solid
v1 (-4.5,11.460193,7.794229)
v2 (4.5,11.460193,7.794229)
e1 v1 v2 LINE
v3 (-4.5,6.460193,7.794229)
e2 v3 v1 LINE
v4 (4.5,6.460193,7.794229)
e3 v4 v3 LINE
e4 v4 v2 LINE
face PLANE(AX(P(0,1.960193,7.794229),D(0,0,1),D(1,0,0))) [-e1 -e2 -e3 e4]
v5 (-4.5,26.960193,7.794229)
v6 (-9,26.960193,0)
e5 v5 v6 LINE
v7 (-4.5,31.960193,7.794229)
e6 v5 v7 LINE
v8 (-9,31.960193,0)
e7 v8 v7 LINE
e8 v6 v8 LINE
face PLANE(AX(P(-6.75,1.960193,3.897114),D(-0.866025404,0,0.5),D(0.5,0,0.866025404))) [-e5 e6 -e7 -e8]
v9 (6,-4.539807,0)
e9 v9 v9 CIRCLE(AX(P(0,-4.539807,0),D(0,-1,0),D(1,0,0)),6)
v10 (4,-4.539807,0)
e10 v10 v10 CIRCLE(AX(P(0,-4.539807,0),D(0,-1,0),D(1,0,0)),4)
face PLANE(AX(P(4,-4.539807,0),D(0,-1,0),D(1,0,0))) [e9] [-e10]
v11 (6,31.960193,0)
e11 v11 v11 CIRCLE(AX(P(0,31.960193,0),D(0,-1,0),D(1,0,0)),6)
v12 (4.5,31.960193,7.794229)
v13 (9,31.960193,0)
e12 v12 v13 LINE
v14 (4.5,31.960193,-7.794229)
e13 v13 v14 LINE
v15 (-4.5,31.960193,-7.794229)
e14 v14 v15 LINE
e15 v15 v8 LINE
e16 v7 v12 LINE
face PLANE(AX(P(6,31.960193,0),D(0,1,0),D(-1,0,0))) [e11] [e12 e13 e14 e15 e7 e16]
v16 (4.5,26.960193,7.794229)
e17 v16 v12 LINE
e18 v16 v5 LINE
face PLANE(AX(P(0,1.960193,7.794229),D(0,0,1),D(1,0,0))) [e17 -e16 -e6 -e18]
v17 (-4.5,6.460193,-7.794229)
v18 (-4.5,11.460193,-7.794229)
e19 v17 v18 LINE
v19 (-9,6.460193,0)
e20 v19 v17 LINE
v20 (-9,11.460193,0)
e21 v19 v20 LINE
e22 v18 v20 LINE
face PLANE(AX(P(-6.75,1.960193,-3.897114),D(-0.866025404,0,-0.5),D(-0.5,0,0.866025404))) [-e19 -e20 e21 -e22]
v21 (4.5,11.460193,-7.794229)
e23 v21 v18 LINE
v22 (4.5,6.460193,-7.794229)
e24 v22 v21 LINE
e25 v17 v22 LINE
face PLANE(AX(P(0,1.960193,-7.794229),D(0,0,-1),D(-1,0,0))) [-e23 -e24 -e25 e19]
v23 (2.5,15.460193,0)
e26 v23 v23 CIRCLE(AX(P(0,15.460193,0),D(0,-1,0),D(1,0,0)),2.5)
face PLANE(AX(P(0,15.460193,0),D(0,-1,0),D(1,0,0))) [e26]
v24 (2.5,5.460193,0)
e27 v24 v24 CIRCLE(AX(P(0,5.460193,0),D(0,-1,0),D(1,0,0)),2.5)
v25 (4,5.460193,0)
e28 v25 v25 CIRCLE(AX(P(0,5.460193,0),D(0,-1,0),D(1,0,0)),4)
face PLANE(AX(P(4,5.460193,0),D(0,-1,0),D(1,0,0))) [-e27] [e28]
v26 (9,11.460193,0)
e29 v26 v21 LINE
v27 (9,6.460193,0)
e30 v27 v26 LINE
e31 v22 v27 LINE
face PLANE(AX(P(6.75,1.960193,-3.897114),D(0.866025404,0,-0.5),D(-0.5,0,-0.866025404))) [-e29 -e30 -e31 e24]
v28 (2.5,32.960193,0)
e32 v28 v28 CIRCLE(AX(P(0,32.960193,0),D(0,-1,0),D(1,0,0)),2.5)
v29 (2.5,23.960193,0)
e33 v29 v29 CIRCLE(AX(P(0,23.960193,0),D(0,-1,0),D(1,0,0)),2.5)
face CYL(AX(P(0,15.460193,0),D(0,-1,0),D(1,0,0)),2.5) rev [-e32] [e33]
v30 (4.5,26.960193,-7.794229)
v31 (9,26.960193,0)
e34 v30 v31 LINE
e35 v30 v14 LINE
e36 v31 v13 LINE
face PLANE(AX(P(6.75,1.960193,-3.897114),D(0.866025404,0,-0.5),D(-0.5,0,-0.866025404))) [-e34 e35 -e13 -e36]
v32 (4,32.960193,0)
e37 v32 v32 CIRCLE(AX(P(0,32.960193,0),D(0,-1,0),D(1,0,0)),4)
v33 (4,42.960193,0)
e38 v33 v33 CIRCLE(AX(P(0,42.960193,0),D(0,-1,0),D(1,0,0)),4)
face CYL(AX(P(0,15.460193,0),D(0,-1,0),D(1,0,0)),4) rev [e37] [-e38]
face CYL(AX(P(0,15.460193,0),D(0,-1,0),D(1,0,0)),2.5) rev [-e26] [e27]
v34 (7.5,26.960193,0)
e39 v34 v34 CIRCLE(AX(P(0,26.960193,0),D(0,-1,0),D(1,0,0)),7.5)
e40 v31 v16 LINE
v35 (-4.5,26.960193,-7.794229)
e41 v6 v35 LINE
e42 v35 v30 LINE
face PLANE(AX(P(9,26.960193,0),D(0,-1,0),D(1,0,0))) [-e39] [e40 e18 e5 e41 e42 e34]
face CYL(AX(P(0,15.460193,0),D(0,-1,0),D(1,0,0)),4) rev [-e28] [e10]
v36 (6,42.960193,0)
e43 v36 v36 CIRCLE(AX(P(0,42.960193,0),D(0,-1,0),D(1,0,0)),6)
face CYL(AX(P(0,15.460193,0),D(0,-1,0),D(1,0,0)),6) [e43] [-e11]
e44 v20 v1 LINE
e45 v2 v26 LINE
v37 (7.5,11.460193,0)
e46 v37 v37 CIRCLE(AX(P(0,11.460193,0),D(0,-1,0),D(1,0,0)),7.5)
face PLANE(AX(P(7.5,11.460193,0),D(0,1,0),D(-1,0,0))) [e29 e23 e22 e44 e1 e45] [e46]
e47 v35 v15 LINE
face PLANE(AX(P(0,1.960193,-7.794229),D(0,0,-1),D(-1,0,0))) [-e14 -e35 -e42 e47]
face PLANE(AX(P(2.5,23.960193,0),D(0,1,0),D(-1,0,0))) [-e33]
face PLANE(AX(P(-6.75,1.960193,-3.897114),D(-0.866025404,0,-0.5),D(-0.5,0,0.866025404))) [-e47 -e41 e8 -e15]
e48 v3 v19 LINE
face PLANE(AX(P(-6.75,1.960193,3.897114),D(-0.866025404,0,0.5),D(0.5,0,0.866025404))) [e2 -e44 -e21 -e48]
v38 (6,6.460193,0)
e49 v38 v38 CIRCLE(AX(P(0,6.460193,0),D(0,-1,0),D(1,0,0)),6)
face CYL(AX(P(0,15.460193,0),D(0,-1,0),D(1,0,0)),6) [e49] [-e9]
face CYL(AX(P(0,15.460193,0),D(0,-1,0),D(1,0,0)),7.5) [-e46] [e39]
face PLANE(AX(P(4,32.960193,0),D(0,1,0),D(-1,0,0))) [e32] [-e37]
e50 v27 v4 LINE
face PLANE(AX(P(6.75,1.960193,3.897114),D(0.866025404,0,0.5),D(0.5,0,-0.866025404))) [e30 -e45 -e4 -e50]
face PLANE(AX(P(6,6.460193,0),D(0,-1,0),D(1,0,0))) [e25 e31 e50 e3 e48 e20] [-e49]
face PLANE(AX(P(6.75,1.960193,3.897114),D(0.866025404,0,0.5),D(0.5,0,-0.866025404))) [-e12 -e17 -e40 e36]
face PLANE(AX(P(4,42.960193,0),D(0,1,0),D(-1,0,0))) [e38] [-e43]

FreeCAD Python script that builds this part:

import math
import FreeCAD as App
import Part
import Sketcher

V = App.Vector
Q = App.Units.Quantity

doc = App.newDocument("Part")
body = doc.addObject("PartDesign::Body", "Body")

# Sketch on XY plane
sketch1 = body.newObject("Sketcher::SketchObject", "Sketch")
sketch1.AttachmentSupport = (doc.getObject("XY_Plane"), [""])
sketch1.MapMode = "FlatFace"
sketch1.addGeometry([
    Part.LineSegment(V(4, -4.539807, 0), V(6, -4.539807, 0)),  # 0
    Part.LineSegment(V(6, -4.539807, 0), V(6, 6.460193, 0)),  # 1
    Part.LineSegment(V(6, 6.460193, 0), V(9, 6.460193, 0)),  # 2
    Part.LineSegment(V(9, 6.460193, 0), V(9, 11.460193, 0)),  # 3
    Part.LineSegment(V(9, 11.460193, 0), V(7.5, 11.460193, 0)),  # 4
    Part.LineSegment(V(7.5, 11.460193, 0), V(7.5, 26.960193, 0)),  # 5
    Part.LineSegment(V(7.5, 26.960193, 0), V(9, 26.960193, 0)),  # 6
    Part.LineSegment(V(9, 26.960193, 0), V(9, 31.960193, 0)),  # 7
    Part.LineSegment(V(9, 31.960193, 0), V(6, 31.960193, 0)),  # 8
    Part.LineSegment(V(6, 31.960193, 0), V(6, 42.960193, 0)),  # 9
    Part.LineSegment(V(6, 42.960193, 0), V(4, 42.960193, 0)),  # 10
    Part.LineSegment(V(4, 42.960193, 0), V(4, 32.960193, 0)),  # 11
    Part.LineSegment(V(4, 32.960193, 0), V(2.5, 32.960193, 0)),  # 12
    Part.LineSegment(V(2.5, 32.960193, 0), V(2.5, 23.960193, 0)),  # 13
    Part.LineSegment(V(2.5, 23.960193, 0), V(0, 23.960193, 0)),  # 14
    Part.LineSegment(V(0, 23.960193, 0), V(0, 15.460193, 0)),  # 15
    Part.LineSegment(V(0, 15.460193, 0), V(2.5, 15.460193, 0)),  # 16
    Part.LineSegment(V(2.5, 15.460193, 0), V(2.5, 5.460193, 0)),  # 17
    Part.LineSegment(V(2.5, 5.460193, 0), V(4, 5.460193, 0)),  # 18
    Part.LineSegment(V(4, 5.460193, 0), V(4, -4.539807, 0)),  # 19
], False)
sketch1.addConstraint([
    Sketcher.Constraint("Coincident", 0, 2, 1, 1),
    Sketcher.Constraint("Coincident", 1, 2, 2, 1),
    Sketcher.Constraint("Coincident", 2, 2, 3, 1),
    Sketcher.Constraint("Coincident", 3, 2, 4, 1),
    Sketcher.Constraint("Coincident", 4, 2, 5, 1),
    Sketcher.Constraint("Coincident", 5, 2, 6, 1),
    Sketcher.Constraint("Coincident", 6, 2, 7, 1),
    Sketcher.Constraint("Coincident", 7, 2, 8, 1),
    Sketcher.Constraint("Coincident", 8, 2, 9, 1),
    Sketcher.Constraint("Coincident", 9, 2, 10, 1),
    Sketcher.Constraint("Coincident", 10, 2, 11, 1),
    Sketcher.Constraint("Coincident", 11, 2, 12, 1),
    Sketcher.Constraint("Coincident", 12, 2, 13, 1),
    Sketcher.Constraint("Coincident", 13, 2, 14, 1),
    Sketcher.Constraint("Coincident", 14, 2, 15, 1),
    Sketcher.Constraint("Coincident", 15, 2, 16, 1),
    Sketcher.Constraint("Coincident", 16, 2, 17, 1),
    Sketcher.Constraint("Coincident", 17, 2, 18, 1),
    Sketcher.Constraint("Coincident", 18, 2, 19, 1),
    Sketcher.Constraint("Coincident", 19, 2, 0, 1),
    Sketcher.Constraint("Horizontal", 0),
    Sketcher.Constraint("Vertical", 1),
    Sketcher.Constraint("Horizontal", 2),
    Sketcher.Constraint("Vertical", 3),
    Sketcher.Constraint("Horizontal", 4),
    Sketcher.Constraint("Vertical", 5),
    Sketcher.Constraint("Horizontal", 6),
    Sketcher.Constraint("Vertical", 7),
    Sketcher.Constraint("Horizontal", 8),
    Sketcher.Constraint("Vertical", 9),
    Sketcher.Constraint("Horizontal", 10),
    Sketcher.Constraint("Vertical", 11),
    Sketcher.Constraint("Horizontal", 12),
    Sketcher.Constraint("Vertical", 13),
    Sketcher.Constraint("Horizontal", 14),
    Sketcher.Constraint("Vertical", 15),
    Sketcher.Constraint("Horizontal", 16),
    Sketcher.Constraint("Vertical", 17),
    Sketcher.Constraint("Horizontal", 18),
    Sketcher.Constraint("Vertical", 19),
    Sketcher.Constraint("PointOnObject", 14, 2, -2),
    Sketcher.Constraint("Vertical", 3, 2, 6, 2),
    Sketcher.Constraint("Vertical", 1, 2, 8, 2),
    Sketcher.Constraint("Vertical", 13, 2, 16, 2),
    Sketcher.Constraint("Vertical", 11, 2, 18, 2),
    Sketcher.Constraint("Equal", 6, 12),
    Sketcher.Constraint("Equal", 3, 7),
    Sketcher.Constraint("Equal", 1, 9),
    Sketcher.Constraint("Equal", 11, 17),
    Sketcher.Constraint("Equal", 17, 19),
    Sketcher.Constraint("DistanceX", 0, 1, 0, 2, Q("2 mm")),
    Sketcher.Constraint("DistanceX", 2, 1, 2, 2, Q("3 mm")),
    Sketcher.Constraint("DistanceY", 1, 1, 1, 2, Q("11 mm")),
    Sketcher.Constraint("DistanceY", 3, 1, 3, 2, Q("5 mm")),
    Sketcher.Constraint("DistanceY", 11, 2, 11, 1, Q("10 mm")),
    Sketcher.Constraint("DistanceY", 13, 2, 13, 1, Q("9 mm")),
    Sketcher.Constraint("DistanceX", 4, 2, 4, 1, Q("1.5 mm")),
    Sketcher.Constraint("DistanceX", 14, 2, 14, 1, Q("2.5 mm")),
    Sketcher.Constraint("DistanceY", 5, 1, 5, 2, Q("15.5 mm")),
    Sketcher.Constraint("DistanceY", 0, 2, -1, 1, Q("4.539807 mm")),
])
revolution = body.newObject("PartDesign::Revolution", "Revolution")
revolution.Profile = sketch1
revolution.ReferenceAxis = (sketch1, ["V_Axis"])
revolution.Angle = 360

# Sketch on XZ plane
sketch2 = body.newObject("Sketcher::SketchObject", "Sketch001")
sketch2.AttachmentSupport = (doc.getObject("XZ_Plane"), [""])
sketch2.MapMode = "FlatFace"
sketch2.AttachmentOffset = App.Placement(V(0, 0, -31.960193), App.Rotation())
sketch2.addGeometry([
    Part.LineSegment(V(-9, 0, 0), V(-4.5, -7.794229, 0)),  # 0
    Part.ArcOfCircle(Part.Circle(V(0, 0, 0), V(0, 0, 1), 9), math.radians(180), math.radians(240)),  # 1
    Part.LineSegment(V(-4.5, -7.794229, 0), V(4.5, -7.794229, 0)),  # 2
    Part.ArcOfCircle(Part.Circle(V(0, 0, 0), V(0, 0, 1), 9), math.radians(-120), math.radians(-60)),  # 3
    Part.LineSegment(V(4.5, -7.794229, 0), V(9, 0, 0)),  # 4
    Part.ArcOfCircle(Part.Circle(V(0, 0, 0), V(0, 0, 1), 9), math.radians(-60), math.radians(0)),  # 5
    Part.ArcOfCircle(Part.Circle(V(0, 0, 0), V(0, 0, 1), 9), math.radians(0), math.radians(60)),  # 6
    Part.LineSegment(V(9, 0, 0), V(4.5, 7.794229, 0)),  # 7
    Part.ArcOfCircle(Part.Circle(V(0, 0, 0), V(0, 0, 1), 9), math.radians(60), math.radians(120)),  # 8
    Part.LineSegment(V(4.5, 7.794229, 0), V(-4.5, 7.794229, 0)),  # 9
    Part.ArcOfCircle(Part.Circle(V(0, 0, 0), V(0, 0, 1), 9), math.radians(120), math.radians(180)),  # 10
    Part.LineSegment(V(-4.5, 7.794229, 0), V(-9, 0, 0)),  # 11
], False)
sketch2.addConstraint([
    Sketcher.Constraint("Coincident", 0, 1, 1, 1),
    Sketcher.Constraint("Coincident", 1, 2, 0, 2),
    Sketcher.Constraint("Coincident", 2, 1, 3, 1),
    Sketcher.Constraint("Coincident", 3, 2, 2, 2),
    Sketcher.Constraint("Coincident", 4, 1, 5, 1),
    Sketcher.Constraint("Coincident", 5, 2, 4, 2),
    Sketcher.Constraint("Coincident", 6, 1, 7, 1),
    Sketcher.Constraint("Coincident", 7, 2, 6, 2),
    Sketcher.Constraint("Coincident", 8, 1, 9, 1),
    Sketcher.Constraint("Coincident", 9, 2, 8, 2),
    Sketcher.Constraint("Coincident", 10, 1, 11, 1),
    Sketcher.Constraint("Coincident", 11, 2, 10, 2),
    Sketcher.Constraint("Horizontal", 2),
    Sketcher.Constraint("Horizontal", 9),
    Sketcher.Constraint("Coincident", 1, 3, -1, 1),
    Sketcher.Constraint("Coincident", 3, 3, -1, 1),
    Sketcher.Constraint("Coincident", 5, 3, -1, 1),
    Sketcher.Constraint("Coincident", 6, 3, -1, 1),
    Sketcher.Constraint("Coincident", 8, 3, -1, 1),
    Sketcher.Constraint("Coincident", 10, 3, -1, 1),
    Sketcher.Constraint("Coincident", 2, 1, 1, 2),
    Sketcher.Constraint("Coincident", 4, 1, 3, 2),
    Sketcher.Constraint("Coincident", 6, 1, 5, 2),
    Sketcher.Constraint("Coincident", 8, 1, 7, 2),
    Sketcher.Constraint("Coincident", 10, 1, 9, 2),
    Sketcher.Constraint("PointOnObject", 0, 1, -1),
    Sketcher.Constraint("PointOnObject", 5, 2, -1),
    Sketcher.Constraint("PointOnObject", 11, 2, -1),
    Sketcher.Constraint("Parallel", 0, 7),
    Sketcher.Constraint("Radius", 1, Q("9 mm")),
    Sketcher.Constraint("DistanceX", 2, 1, 2, 2, Q("9 mm")),
])
pocket1 = body.newObject("PartDesign::Pocket", "Pocket")
pocket1.Profile = sketch2
pocket1.Length = 30
pocket1.Reversed = True

doc.recompute()
